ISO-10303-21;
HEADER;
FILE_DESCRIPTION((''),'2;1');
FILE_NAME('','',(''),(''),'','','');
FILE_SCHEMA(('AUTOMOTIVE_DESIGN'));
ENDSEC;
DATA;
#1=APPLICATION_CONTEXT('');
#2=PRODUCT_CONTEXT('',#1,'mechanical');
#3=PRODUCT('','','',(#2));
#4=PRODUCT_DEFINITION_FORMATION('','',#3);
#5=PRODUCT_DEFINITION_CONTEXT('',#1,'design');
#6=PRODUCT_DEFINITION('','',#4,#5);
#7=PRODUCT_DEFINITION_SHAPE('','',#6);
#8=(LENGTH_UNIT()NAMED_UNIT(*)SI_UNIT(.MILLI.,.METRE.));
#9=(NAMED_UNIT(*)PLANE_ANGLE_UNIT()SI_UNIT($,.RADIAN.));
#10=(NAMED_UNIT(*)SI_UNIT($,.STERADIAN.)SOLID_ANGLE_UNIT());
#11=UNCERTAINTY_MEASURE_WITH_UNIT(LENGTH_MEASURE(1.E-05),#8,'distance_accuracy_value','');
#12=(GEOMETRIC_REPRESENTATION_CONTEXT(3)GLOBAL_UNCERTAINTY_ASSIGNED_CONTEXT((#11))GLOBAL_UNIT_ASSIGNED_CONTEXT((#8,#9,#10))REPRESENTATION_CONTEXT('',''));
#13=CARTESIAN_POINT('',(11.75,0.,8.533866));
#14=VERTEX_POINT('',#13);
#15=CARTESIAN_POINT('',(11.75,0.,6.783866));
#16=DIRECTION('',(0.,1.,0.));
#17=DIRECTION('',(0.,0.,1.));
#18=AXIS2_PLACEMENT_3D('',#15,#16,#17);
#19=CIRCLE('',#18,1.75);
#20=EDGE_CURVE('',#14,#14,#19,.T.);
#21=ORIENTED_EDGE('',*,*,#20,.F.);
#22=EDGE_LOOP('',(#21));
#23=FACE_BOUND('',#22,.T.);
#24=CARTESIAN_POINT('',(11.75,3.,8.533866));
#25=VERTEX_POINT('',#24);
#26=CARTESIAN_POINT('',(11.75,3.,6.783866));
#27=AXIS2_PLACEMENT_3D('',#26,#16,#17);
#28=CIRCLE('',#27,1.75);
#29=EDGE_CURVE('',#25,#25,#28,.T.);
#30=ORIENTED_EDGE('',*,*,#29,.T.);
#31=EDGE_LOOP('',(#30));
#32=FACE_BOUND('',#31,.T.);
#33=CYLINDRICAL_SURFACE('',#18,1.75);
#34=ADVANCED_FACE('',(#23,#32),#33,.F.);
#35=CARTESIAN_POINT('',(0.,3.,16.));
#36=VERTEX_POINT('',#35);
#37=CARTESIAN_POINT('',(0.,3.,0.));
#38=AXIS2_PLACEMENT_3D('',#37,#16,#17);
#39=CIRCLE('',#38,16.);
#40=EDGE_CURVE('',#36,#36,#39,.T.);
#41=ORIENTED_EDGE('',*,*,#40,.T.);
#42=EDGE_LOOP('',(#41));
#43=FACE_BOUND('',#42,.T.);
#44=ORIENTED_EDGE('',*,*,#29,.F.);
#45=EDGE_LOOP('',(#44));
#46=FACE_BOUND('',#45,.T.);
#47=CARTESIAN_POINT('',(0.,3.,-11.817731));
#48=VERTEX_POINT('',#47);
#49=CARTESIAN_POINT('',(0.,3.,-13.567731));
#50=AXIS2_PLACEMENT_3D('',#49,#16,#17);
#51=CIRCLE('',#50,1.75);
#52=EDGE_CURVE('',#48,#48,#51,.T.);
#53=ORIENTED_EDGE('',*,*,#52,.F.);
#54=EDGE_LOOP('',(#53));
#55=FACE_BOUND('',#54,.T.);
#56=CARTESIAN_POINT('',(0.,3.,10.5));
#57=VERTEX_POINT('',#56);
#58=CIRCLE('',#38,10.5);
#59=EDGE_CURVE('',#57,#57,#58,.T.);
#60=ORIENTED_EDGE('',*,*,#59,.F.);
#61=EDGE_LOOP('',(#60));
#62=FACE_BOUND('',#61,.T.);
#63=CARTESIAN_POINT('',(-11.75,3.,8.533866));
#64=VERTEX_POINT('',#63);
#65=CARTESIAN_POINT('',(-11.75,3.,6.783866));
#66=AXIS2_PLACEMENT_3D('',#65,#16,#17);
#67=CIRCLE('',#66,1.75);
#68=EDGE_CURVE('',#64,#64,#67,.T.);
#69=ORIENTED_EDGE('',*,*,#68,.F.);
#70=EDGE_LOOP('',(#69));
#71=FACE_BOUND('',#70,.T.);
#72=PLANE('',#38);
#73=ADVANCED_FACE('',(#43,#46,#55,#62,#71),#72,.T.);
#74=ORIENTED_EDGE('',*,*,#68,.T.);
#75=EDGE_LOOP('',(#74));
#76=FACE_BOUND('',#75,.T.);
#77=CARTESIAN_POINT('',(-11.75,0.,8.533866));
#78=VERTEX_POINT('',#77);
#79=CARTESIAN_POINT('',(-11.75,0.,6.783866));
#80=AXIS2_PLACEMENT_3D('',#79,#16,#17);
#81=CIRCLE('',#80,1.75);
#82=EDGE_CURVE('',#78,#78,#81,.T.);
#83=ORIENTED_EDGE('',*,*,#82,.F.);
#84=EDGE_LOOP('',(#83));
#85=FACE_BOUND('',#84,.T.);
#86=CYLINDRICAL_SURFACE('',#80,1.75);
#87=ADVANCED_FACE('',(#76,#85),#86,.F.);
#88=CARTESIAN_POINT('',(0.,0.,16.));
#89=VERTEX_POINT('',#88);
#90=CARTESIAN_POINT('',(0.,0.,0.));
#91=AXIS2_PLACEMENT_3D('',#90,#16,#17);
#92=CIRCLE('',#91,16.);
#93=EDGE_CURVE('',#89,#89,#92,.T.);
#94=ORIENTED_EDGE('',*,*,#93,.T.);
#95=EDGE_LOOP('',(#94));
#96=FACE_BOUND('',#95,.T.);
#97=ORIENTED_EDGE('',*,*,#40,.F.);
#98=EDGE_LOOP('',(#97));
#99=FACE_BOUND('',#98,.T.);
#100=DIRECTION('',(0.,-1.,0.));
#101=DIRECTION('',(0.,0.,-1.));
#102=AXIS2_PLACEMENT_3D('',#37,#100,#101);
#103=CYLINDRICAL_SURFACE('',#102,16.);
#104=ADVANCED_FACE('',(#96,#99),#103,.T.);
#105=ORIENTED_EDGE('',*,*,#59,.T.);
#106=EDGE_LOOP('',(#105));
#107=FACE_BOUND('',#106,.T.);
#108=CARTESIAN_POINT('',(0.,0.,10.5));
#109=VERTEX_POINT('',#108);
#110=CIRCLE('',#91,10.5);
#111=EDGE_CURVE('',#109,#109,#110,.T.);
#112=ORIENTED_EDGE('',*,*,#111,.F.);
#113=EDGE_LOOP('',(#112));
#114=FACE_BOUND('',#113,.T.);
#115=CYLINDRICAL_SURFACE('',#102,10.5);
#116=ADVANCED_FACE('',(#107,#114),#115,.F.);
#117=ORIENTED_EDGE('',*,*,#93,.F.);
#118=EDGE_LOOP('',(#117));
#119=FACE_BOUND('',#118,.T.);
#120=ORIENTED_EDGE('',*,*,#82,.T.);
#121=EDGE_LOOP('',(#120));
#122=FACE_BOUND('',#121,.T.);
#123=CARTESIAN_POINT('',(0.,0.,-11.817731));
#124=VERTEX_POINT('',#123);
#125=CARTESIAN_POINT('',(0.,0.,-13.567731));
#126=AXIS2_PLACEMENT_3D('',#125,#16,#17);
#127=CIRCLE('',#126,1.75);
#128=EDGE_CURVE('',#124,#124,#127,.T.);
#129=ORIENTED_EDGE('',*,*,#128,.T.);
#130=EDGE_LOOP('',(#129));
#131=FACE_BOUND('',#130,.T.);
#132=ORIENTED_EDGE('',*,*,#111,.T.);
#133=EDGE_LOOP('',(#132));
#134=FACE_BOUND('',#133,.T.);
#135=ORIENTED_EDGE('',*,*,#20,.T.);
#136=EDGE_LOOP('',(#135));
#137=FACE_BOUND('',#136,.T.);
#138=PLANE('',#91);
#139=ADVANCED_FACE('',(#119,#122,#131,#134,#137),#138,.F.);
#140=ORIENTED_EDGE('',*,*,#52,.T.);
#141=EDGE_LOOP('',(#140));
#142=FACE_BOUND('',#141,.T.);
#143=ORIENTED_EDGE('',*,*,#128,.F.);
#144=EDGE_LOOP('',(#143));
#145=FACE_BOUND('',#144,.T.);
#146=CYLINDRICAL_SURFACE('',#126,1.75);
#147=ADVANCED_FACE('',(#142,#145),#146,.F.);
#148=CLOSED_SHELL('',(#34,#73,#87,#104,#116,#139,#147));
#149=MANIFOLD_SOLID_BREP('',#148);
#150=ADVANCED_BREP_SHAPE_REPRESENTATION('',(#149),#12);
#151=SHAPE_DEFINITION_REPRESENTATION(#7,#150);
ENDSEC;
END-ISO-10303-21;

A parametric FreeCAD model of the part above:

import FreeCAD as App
import Part
import Sketcher
from FreeCAD import Vector
Q = App.Units.Quantity

doc = App.newDocument("Part")
params = doc.addObject("Spreadsheet::Sheet", "Params")
for row, (alias, value) in enumerate([
    ("sketch1_diameter", "32 mm"),
    ("sketch1_diameter2", "21 mm"),
    ("pad1_length", "3 mm"),
    ("sketch2_diameter", "3.5 mm"),
], start=1):
    params.set(f"A{row}", alias)
    params.set(f"B{row}", "=" + value)
    params.setAlias(f"B{row}", alias)

body = doc.addObject("PartDesign::Body", "Body")

# Sketch on XZ plane
sketch1 = body.newObject("Sketcher::SketchObject", "Sketch")
sketch1.AttachmentSupport = (doc.getObject("XZ_Plane"), [""])
sketch1.MapMode = "FlatFace"
sketch1.addGeometry([
    Part.Circle(Vector(0, 0, 0), Vector(0, 0, 1), 16),
    Part.Circle(Vector(0, 0, 0), Vector(0, 0, 1), 10.5),
], False)
sketch1.addConstraint([
    Sketcher.Constraint("Coincident", 0, 3, -1, 1),
    Sketcher.Constraint("Coincident", 1, 3, -1, 1),
    Sketcher.Constraint("Diameter", 0, Q("32 mm")),
    Sketcher.Constraint("Diameter", 1, Q("21 mm")),
])
sketch1.setExpression("Constraints[2]", "Params.sketch1_diameter")
sketch1.setExpression("Constraints[3]", "Params.sketch1_diameter2")
pad1 = body.newObject("PartDesign::Pad", "Pad")
pad1.Profile = sketch1
pad1.setExpression("Length", "Params.pad1_length")
pad1.Reversed = True

# Sketch on XZ plane
sketch2 = body.newObject("Sketcher::SketchObject", "Sketch001")
sketch2.AttachmentSupport = (doc.getObject("XZ_Plane"), [""])
sketch2.MapMode = "FlatFace"
sketch2.AttachmentOffset = App.Placement(Vector(0, 0, -3), App.Rotation())
sketch2.addGeometry([
    Part.Circle(Vector(0, -13.567731, 0), Vector(0, 0, 1), 1.75),
    Part.Circle(Vector(-11.75, 6.783866, 0), Vector(0, 0, 1), 1.75),
    Part.Circle(Vector(11.75, 6.783866, 0), Vector(0, 0, 1), 1.75),
], False)
sketch2.addConstraint([
    Sketcher.Constraint("Equal", 0, 1),
    Sketcher.Constraint("Equal", 1, 2),
    Sketcher.Constraint("Symmetric", 1, 3, 2, 3, -2),
    Sketcher.Constraint("PointOnObject", 0, 3, -2),
    Sketcher.Constraint("Diameter", 0, Q("3.5 mm")),
    Sketcher.Constraint("DistanceX", 1, 3, 2, 3, Q("23.5 mm")),
    Sketcher.Constraint("DistanceY", 0, 3, -1, 1, Q("13.567731 mm")),
    Sketcher.Constraint("DistanceY", -1, 1, 1, 3, Q("6.783866 mm")),
])
sketch2.setExpression("Constraints[4]", "Params.sketch2_diameter")
pocket1 = body.newObject("PartDesign::Pocket", "Pocket")
pocket1.Profile = sketch2
pocket1.Type = "ThroughAll"
pocket1.Reversed = True

doc.recompute()
